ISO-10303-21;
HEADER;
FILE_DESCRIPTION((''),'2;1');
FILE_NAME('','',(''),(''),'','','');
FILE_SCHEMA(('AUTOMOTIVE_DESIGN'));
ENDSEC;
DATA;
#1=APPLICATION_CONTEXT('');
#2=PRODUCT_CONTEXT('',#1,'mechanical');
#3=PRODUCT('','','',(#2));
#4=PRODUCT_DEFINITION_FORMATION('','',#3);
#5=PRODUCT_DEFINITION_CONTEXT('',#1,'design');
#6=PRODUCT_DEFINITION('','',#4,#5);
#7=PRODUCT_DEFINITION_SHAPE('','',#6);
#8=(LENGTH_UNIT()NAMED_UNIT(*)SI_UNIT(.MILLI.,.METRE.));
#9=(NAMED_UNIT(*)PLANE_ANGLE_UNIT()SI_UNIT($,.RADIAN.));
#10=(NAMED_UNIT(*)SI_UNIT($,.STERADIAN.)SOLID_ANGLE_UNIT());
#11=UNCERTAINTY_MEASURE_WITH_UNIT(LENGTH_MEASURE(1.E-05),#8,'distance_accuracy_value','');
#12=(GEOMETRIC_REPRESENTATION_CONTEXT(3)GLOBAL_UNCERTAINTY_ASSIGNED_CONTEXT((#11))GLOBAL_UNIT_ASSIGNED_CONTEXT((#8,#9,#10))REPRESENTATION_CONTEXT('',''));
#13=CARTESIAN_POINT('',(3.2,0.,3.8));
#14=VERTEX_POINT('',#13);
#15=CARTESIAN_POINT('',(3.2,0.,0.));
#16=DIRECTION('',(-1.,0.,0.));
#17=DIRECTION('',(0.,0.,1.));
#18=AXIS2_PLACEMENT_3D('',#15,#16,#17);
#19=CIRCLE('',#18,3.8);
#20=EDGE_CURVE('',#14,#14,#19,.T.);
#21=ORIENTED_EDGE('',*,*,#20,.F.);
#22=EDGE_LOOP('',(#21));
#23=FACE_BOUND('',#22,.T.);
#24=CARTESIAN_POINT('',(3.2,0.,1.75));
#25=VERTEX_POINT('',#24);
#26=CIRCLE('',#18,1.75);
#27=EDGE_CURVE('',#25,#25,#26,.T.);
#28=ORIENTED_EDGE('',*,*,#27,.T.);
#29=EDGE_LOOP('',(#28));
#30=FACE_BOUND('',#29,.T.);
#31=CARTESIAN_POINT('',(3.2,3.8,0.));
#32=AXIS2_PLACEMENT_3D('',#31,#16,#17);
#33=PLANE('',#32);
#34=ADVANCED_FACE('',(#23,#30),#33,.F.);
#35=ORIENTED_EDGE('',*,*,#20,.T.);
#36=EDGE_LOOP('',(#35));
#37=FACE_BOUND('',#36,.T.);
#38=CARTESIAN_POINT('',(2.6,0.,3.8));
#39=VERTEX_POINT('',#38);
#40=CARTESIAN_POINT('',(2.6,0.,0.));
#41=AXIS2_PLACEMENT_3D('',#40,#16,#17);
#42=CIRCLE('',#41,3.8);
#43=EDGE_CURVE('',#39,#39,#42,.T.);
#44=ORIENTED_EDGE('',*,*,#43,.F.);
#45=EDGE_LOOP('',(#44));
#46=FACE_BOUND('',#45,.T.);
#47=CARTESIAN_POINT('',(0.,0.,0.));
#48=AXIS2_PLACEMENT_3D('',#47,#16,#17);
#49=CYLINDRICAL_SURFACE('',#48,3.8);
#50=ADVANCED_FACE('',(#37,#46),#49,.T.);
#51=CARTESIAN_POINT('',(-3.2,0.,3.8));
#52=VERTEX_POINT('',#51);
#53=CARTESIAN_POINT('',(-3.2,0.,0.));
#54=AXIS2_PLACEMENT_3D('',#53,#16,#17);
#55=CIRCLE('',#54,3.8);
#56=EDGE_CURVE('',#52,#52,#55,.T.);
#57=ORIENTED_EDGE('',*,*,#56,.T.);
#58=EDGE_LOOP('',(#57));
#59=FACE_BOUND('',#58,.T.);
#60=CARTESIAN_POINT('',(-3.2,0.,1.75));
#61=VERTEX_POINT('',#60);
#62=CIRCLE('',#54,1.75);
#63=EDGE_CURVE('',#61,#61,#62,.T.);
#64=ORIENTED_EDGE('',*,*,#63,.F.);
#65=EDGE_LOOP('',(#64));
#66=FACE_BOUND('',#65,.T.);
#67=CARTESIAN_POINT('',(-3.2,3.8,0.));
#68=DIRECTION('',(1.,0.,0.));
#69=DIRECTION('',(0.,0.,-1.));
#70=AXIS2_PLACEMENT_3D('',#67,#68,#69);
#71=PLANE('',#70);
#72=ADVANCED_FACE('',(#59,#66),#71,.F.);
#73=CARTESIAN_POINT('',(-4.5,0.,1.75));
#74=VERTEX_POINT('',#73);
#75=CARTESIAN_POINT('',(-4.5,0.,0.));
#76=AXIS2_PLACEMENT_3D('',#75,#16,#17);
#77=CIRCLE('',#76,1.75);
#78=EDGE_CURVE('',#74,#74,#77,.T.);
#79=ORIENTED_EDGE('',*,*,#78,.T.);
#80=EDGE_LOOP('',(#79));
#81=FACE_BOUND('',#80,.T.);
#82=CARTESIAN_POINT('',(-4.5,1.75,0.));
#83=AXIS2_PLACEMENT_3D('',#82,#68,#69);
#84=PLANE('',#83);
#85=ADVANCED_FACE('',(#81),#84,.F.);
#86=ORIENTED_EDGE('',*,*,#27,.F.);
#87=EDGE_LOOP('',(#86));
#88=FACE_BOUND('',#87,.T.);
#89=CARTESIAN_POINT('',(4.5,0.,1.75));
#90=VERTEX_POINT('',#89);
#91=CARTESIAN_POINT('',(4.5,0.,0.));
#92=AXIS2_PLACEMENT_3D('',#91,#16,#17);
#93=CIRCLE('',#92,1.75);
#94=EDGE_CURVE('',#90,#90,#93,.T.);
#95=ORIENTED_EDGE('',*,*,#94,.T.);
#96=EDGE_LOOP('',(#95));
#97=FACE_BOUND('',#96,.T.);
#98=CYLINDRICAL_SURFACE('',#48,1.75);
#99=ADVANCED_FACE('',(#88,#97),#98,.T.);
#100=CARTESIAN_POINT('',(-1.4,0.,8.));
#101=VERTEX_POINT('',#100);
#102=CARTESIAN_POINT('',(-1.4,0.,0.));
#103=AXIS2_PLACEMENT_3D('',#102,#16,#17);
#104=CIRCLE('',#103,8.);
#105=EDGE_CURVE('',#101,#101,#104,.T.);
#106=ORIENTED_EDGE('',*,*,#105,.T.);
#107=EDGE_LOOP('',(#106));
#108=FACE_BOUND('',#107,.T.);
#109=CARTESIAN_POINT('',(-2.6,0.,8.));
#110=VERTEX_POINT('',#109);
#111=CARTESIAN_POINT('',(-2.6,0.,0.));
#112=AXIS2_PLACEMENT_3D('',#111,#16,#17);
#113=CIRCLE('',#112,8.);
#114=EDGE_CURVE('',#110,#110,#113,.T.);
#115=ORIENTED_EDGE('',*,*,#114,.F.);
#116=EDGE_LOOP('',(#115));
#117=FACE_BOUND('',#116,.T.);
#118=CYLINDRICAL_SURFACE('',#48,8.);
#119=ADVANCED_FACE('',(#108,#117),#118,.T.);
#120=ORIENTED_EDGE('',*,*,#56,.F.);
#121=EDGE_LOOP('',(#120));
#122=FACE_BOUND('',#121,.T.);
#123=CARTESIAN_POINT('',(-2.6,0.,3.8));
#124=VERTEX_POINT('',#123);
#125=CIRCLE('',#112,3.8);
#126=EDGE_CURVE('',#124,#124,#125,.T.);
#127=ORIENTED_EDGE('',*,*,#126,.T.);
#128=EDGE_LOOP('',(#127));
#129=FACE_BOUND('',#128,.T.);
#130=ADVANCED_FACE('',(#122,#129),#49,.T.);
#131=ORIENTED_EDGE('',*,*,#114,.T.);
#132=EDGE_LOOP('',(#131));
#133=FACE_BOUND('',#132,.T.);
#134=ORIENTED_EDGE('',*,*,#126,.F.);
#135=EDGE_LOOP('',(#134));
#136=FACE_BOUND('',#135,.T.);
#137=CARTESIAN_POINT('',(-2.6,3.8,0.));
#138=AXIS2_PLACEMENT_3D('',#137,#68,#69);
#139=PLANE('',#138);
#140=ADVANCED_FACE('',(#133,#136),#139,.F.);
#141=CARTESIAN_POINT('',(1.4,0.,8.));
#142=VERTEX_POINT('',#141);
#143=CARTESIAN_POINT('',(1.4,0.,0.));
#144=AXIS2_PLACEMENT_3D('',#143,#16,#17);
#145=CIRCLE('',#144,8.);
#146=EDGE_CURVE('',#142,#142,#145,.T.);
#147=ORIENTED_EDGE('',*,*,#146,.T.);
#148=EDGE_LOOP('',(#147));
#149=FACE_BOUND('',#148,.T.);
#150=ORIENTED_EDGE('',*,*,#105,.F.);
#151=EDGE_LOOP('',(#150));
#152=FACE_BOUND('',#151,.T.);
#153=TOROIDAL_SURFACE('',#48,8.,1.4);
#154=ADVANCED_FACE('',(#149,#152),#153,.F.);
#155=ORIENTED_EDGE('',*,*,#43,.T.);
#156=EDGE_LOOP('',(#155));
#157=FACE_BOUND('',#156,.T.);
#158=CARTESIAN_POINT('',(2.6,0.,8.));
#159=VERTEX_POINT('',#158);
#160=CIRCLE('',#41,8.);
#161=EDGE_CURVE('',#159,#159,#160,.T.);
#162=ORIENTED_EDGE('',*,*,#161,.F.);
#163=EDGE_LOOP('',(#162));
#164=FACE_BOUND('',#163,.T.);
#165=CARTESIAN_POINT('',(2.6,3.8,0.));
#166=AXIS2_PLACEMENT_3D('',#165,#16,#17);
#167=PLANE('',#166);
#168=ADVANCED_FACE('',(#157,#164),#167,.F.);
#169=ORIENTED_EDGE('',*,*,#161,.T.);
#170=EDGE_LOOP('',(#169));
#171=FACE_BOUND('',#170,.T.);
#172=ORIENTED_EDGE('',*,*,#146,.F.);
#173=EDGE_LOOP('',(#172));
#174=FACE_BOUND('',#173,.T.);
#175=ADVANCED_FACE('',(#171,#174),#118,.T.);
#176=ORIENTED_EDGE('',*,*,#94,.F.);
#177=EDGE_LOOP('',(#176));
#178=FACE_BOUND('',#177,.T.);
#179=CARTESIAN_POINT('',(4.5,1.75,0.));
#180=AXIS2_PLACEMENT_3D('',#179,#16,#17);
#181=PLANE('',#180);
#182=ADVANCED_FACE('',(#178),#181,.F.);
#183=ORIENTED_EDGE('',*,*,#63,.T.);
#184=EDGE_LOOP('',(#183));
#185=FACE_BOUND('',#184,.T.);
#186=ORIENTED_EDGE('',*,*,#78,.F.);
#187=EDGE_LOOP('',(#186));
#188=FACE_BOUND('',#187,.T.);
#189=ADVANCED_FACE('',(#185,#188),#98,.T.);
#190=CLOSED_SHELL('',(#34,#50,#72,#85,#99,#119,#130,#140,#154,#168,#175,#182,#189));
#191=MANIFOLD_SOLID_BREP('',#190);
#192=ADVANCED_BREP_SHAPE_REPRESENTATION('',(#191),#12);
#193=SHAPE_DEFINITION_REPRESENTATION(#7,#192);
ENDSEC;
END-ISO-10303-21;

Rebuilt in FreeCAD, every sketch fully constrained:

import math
import FreeCAD as App
import Part
import Sketcher

doc = App.newDocument("Part")
params = doc.addObject("Spreadsheet::Sheet", "Params")
for row, (alias, value) in enumerate([
    ("sketch1_radius", "1.4 mm"),
    ("sketch1_width", "9 mm"),
    ("sketch1_width2", "1.2 mm"),
    ("sketch1_width3", "0.6 mm"),
    ("sketch1_height", "4.2 mm"),
    ("revolution_angle", "360 deg"),
], start=1):
    params.set(f"A{row}", alias)
    params.set(f"B{row}", "=" + value)
    params.setAlias(f"B{row}", alias)

body = doc.addObject("PartDesign::Body", "Body")

# Sketch on XY plane
sketch1 = body.newObject("Sketcher::SketchObject", "Sketch")
sketch1.AttachmentSupport = (doc.getObject("XY_Plane"), [""])
sketch1.MapMode = "FlatFace"
sketch1.addGeometry([
    Part.LineSegment(App.Vector(2.6, 3.8, 0), App.Vector(2.6, 8, 0)),  # 0
    Part.LineSegment(App.Vector(2.6, 8, 0), App.Vector(1.4, 8, 0)),  # 1
    Part.ArcOfCircle(Part.Circle(App.Vector(0, 8, 0), App.Vector(0, 0, 1), 1.4), math.radians(180), math.radians(360)),  # 2
    Part.LineSegment(App.Vector(-1.4, 8, 0), App.Vector(-2.6, 8, 0)),  # 3
    Part.LineSegment(App.Vector(-2.6, 8, 0), App.Vector(-2.6, 3.8, 0)),  # 4
    Part.LineSegment(App.Vector(-2.6, 3.8, 0), App.Vector(-3.2, 3.8, 0)),  # 5
    Part.LineSegment(App.Vector(-3.2, 3.8, 0), App.Vector(-3.2, 1.75, 0)),  # 6
    Part.LineSegment(App.Vector(-3.2, 1.75, 0), App.Vector(-4.5, 1.75, 0)),  # 7
    Part.LineSegment(App.Vector(-4.5, 1.75, 0), App.Vector(-4.5, 0, 0)),  # 8
    Part.LineSegment(App.Vector(-4.5, 0, 0), App.Vector(4.5, 0, 0)),  # 9
    Part.LineSegment(App.Vector(4.5, 0, 0), App.Vector(4.5, 1.75, 0)),  # 10
    Part.LineSegment(App.Vector(4.5, 1.75, 0), App.Vector(3.2, 1.75, 0)),  # 11
    Part.LineSegment(App.Vector(3.2, 1.75, 0), App.Vector(3.2, 3.8, 0)),  # 12
    Part.LineSegment(App.Vector(3.2, 3.8, 0), App.Vector(2.6, 3.8, 0)),  # 13
], False)
sketch1.addConstraint([
    Sketcher.Constraint("Coincident", 0, 2, 1, 1),
    Sketcher.Constraint("Coincident", 1, 2, 2, 2),
    Sketcher.Constraint("Coincident", 2, 1, 3, 1),
    Sketcher.Constraint("Coincident", 3, 2, 4, 1),
    Sketcher.Constraint("Coincident", 4, 2, 5, 1),
    Sketcher.Constraint("Coincident", 5, 2, 6, 1),
    Sketcher.Constraint("Coincident", 6, 2, 7, 1),
    Sketcher.Constraint("Coincident", 7, 2, 8, 1),
    Sketcher.Constraint("Coincident", 8, 2, 9, 1),
    Sketcher.Constraint("Coincident", 9, 2, 10, 1),
    Sketcher.Constraint("Coincident", 10, 2, 11, 1),
    Sketcher.Constraint("Coincident", 11, 2, 12, 1),
    Sketcher.Constraint("Coincident", 12, 2, 13, 1),
    Sketcher.Constraint("Coincident", 13, 2, 0, 1),
    Sketcher.Constraint("Vertical", 0),
    Sketcher.Constraint("Horizontal", 1),
    Sketcher.Constraint("Horizontal", 3),
    Sketcher.Constraint("Vertical", 4),
    Sketcher.Constraint("Horizontal", 5),
    Sketcher.Constraint("Vertical", 6),
    Sketcher.Constraint("Horizontal", 7),
    Sketcher.Constraint("Vertical", 8),
    Sketcher.Constraint("Horizontal", 9),
    Sketcher.Constraint("Vertical", 10),
    Sketcher.Constraint("Horizontal", 11),
    Sketcher.Constraint("Vertical", 12),
    Sketcher.Constraint("Horizontal", 13),
    Sketcher.Constraint("Symmetric", 8, 2, 9, 2, -1, 1),
    Sketcher.Constraint("Symmetric", 1, 2, 2, 1, -2),
    Sketcher.Constraint("Symmetric", 6, 2, 11, 2, -2),
    Sketcher.Constraint("Symmetric", 4, 2, 13, 2, -2),
    Sketcher.Constraint("Horizontal", 2, 3, 0, 2),
    Sketcher.Constraint("Radius", 2, 1.4),
    Sketcher.Constraint("DistanceX", 9, 1, 9, 2, 9.0),
    Sketcher.Constraint("DistanceX", 1, 2, 1, 1, 1.2),
    Sketcher.Constraint("DistanceX", 5, 2, 5, 1, 0.6),
    Sketcher.Constraint("DistanceY", 0, 1, 0, 2, 4.2),
    Sketcher.Constraint("DistanceY", -1, 1, 2, 3, 8.0),
    Sketcher.Constraint("DistanceY", 6, 2, 6, 1, 2.05),
])
sketch1.setExpression("Constraints[32]", "Params.sketch1_radius")
sketch1.setExpression("Constraints[33]", "Params.sketch1_width")
sketch1.setExpression("Constraints[34]", "Params.sketch1_width2")
sketch1.setExpression("Constraints[35]", "Params.sketch1_width3")
sketch1.setExpression("Constraints[36]", "Params.sketch1_height")
revolution = body.newObject("PartDesign::Revolution", "Revolution")
revolution.Profile = sketch1
revolution.ReferenceAxis = (sketch1, ["H_Axis"])
revolution.setExpression("Angle", "Params.revolution_angle")

doc.recompute()
